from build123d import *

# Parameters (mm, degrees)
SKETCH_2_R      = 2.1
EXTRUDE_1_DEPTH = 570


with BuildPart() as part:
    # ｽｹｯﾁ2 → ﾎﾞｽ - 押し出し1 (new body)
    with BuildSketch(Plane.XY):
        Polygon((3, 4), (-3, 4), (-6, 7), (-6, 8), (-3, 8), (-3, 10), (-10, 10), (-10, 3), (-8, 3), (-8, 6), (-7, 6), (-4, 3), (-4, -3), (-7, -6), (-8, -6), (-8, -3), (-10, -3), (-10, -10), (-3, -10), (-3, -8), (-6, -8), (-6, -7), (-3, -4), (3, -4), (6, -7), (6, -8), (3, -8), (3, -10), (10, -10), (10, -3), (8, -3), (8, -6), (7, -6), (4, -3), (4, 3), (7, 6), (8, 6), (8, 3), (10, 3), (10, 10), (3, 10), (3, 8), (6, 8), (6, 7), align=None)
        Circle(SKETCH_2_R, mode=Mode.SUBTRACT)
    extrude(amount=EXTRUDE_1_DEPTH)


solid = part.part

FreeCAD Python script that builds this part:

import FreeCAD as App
import Part
import Sketcher


def add_polygon(sketch, points):
    """Adds a closed chain of lines whose ends are joined by coincident constraints."""
    first, n = sketch.GeometryCount, len(points)
    for a, b in zip(points, points[1:] + points[:1]):
        sketch.addGeometry(Part.LineSegment(App.Vector(*a, 0), App.Vector(*b, 0)), False)
    for i in range(n):
        sketch.addConstraint(Sketcher.Constraint("Coincident", first + i, 2, first + (i + 1) % n, 1))

doc = App.newDocument("Part")
body = doc.addObject("PartDesign::Body", "Body")

sketch1 = body.newObject("Sketcher::SketchObject", "Sketch")
sketch1.AttachmentSupport = (doc.getObject("XY_Plane"), [""])
sketch1.MapMode = "FlatFace"
add_polygon(sketch1, [(3, 4), (-3, 4), (-6, 7), (-6, 8), (-3, 8), (-3, 10), (-10, 10), (-10, 3), (-8, 3), (-8, 6), (-7, 6), (-4, 3), (-4, -3), (-7, -6), (-8, -6), (-8, -3), (-10, -3), (-10, -10), (-3, -10), (-3, -8), (-6, -8), (-6, -7), (-3, -4), (3, -4), (6, -7), (6, -8), (3, -8), (3, -10), (10, -10), (10, -3), (8, -3), (8, -6), (7, -6), (4, -3), (4, 3), (7, 6), (8, 6), (8, 3), (10, 3), (10, 10), (3, 10), (3, 8), (6, 8), (6, 7)])
sketch1.addGeometry(Part.Circle(App.Vector(0, 0, 0), App.Vector(0, 0, 1), 2.1), False)
sketch1.addConstraint([
    Sketcher.Constraint("Horizontal", 0),
    Sketcher.Constraint("Vertical", 2),
    Sketcher.Constraint("Horizontal", 3),
    Sketcher.Constraint("Vertical", 4),
    Sketcher.Constraint("Horizontal", 5),
    Sketcher.Constraint("Vertical", 6),
    Sketcher.Constraint("Horizontal", 7),
    Sketcher.Constraint("Vertical", 8),
    Sketcher.Constraint("Horizontal", 9),
    Sketcher.Constraint("Vertical", 11),
    Sketcher.Constraint("Horizontal", 13),
    Sketcher.Constraint("Vertical", 14),
    Sketcher.Constraint("Horizontal", 15),
    Sketcher.Constraint("Vertical", 16),
    Sketcher.Constraint("Horizontal", 17),
    Sketcher.Constraint("Vertical", 18),
    Sketcher.Constraint("Horizontal", 19),
    Sketcher.Constraint("Vertical", 20),
    Sketcher.Constraint("Horizontal", 22),
    Sketcher.Constraint("Vertical", 24),
    Sketcher.Constraint("Horizontal", 25),
    Sketcher.Constraint("Vertical", 26),
    Sketcher.Constraint("Horizontal", 27),
    Sketcher.Constraint("Vertical", 28),
    Sketcher.Constraint("Horizontal", 29),
    Sketcher.Constraint("Vertical", 30),
    Sketcher.Constraint("Horizontal", 31),
    Sketcher.Constraint("Vertical", 33),
    Sketcher.Constraint("Horizontal", 35),
    Sketcher.Constraint("Vertical", 36),
    Sketcher.Constraint("Horizontal", 37),
    Sketcher.Constraint("Vertical", 38),
    Sketcher.Constraint("Horizontal", 39),
    Sketcher.Constraint("Vertical", 40),
    Sketcher.Constraint("Horizontal", 41),
    Sketcher.Constraint("Vertical", 42),
    Sketcher.Constraint("Coincident", 44, 3, -1, 1),
    Sketcher.Constraint("Symmetric", 0, 2, 22, 2, -1, 1),
    Sketcher.Constraint("Symmetric", 1, 2, 23, 2, -1, 1),
    Sketcher.Constraint("Symmetric", 3, 2, 25, 2, -1, 1),
    Sketcher.Constraint("Symmetric", 5, 2, 27, 2, -1, 1),
    Sketcher.Constraint("Symmetric", 7, 2, 29, 2, -1, 1),
    Sketcher.Constraint("Symmetric", 9, 2, 31, 2, -1, 1),
    Sketcher.Constraint("Symmetric", 10, 2, 32, 2, -1, 1),
    Sketcher.Constraint("Symmetric", 12, 2, 34, 2, -1, 1),
    Sketcher.Constraint("Symmetric", 14, 2, 36, 2, -1, 1),
    Sketcher.Constraint("Symmetric", 16, 2, 38, 2, -1, 1),
    Sketcher.Constraint("Symmetric", 18, 2, 40, 2, -1, 1),
    Sketcher.Constraint("Symmetric", 20, 2, 42, 2, -1, 1),
    Sketcher.Constraint("Symmetric", 20, 2, 23, 2, -2),
    Sketcher.Constraint("Symmetric", 18, 2, 25, 2, -2),
    Sketcher.Constraint("Symmetric", 16, 2, 27, 2, -2),
    Sketcher.Constraint("Symmetric", 14, 2, 29, 2, -2),
    Sketcher.Constraint("Symmetric", 12, 2, 31, 2, -2),
    Sketcher.Constraint("Parallel", 1, 10),
    Sketcher.Constraint("Perpendicular", 10, 12),
    Sketcher.Constraint("Parallel", 12, 21),
    Sketcher.Constraint("Perpendicular", 32, 34),
    Sketcher.Constraint("Parallel", 34, 43),
    Sketcher.Constraint("Horizontal", 7, 2, 10, 2),
    Sketcher.Constraint("Horizontal", 11, 2, 14, 2),
    Sketcher.Constraint("Vertical", 0, 2, 3, 2),
    Sketcher.Constraint("Equal", 35, 2),
    Sketcher.Constraint("Equal", 37, 4),
    Sketcher.Constraint("Equal", 39, 6),
    Sketcher.Constraint("Equal", 41, 8),
    Sketcher.Constraint("Equal", 22, 11),
    Sketcher.Constraint("Diameter", 44, 4.2),
    Sketcher.Constraint("DistanceX", 0, 2, 0, 1, 6.0),
    Sketcher.Constraint("DistanceX", 3, 1, 3, 2, 3.0),
    Sketcher.Constraint("DistanceX", 5, 2, 5, 1, 7.0),
    Sketcher.Constraint("DistanceX", 7, 1, 7, 2, 2.0),
    Sketcher.Constraint("DistanceX", 9, 1, 9, 2, 1.0),
])
pad1 = body.newObject("PartDesign::Pad", "Pad")
pad1.Profile = sketch1
pad1.Length = 570

doc.recompute()
